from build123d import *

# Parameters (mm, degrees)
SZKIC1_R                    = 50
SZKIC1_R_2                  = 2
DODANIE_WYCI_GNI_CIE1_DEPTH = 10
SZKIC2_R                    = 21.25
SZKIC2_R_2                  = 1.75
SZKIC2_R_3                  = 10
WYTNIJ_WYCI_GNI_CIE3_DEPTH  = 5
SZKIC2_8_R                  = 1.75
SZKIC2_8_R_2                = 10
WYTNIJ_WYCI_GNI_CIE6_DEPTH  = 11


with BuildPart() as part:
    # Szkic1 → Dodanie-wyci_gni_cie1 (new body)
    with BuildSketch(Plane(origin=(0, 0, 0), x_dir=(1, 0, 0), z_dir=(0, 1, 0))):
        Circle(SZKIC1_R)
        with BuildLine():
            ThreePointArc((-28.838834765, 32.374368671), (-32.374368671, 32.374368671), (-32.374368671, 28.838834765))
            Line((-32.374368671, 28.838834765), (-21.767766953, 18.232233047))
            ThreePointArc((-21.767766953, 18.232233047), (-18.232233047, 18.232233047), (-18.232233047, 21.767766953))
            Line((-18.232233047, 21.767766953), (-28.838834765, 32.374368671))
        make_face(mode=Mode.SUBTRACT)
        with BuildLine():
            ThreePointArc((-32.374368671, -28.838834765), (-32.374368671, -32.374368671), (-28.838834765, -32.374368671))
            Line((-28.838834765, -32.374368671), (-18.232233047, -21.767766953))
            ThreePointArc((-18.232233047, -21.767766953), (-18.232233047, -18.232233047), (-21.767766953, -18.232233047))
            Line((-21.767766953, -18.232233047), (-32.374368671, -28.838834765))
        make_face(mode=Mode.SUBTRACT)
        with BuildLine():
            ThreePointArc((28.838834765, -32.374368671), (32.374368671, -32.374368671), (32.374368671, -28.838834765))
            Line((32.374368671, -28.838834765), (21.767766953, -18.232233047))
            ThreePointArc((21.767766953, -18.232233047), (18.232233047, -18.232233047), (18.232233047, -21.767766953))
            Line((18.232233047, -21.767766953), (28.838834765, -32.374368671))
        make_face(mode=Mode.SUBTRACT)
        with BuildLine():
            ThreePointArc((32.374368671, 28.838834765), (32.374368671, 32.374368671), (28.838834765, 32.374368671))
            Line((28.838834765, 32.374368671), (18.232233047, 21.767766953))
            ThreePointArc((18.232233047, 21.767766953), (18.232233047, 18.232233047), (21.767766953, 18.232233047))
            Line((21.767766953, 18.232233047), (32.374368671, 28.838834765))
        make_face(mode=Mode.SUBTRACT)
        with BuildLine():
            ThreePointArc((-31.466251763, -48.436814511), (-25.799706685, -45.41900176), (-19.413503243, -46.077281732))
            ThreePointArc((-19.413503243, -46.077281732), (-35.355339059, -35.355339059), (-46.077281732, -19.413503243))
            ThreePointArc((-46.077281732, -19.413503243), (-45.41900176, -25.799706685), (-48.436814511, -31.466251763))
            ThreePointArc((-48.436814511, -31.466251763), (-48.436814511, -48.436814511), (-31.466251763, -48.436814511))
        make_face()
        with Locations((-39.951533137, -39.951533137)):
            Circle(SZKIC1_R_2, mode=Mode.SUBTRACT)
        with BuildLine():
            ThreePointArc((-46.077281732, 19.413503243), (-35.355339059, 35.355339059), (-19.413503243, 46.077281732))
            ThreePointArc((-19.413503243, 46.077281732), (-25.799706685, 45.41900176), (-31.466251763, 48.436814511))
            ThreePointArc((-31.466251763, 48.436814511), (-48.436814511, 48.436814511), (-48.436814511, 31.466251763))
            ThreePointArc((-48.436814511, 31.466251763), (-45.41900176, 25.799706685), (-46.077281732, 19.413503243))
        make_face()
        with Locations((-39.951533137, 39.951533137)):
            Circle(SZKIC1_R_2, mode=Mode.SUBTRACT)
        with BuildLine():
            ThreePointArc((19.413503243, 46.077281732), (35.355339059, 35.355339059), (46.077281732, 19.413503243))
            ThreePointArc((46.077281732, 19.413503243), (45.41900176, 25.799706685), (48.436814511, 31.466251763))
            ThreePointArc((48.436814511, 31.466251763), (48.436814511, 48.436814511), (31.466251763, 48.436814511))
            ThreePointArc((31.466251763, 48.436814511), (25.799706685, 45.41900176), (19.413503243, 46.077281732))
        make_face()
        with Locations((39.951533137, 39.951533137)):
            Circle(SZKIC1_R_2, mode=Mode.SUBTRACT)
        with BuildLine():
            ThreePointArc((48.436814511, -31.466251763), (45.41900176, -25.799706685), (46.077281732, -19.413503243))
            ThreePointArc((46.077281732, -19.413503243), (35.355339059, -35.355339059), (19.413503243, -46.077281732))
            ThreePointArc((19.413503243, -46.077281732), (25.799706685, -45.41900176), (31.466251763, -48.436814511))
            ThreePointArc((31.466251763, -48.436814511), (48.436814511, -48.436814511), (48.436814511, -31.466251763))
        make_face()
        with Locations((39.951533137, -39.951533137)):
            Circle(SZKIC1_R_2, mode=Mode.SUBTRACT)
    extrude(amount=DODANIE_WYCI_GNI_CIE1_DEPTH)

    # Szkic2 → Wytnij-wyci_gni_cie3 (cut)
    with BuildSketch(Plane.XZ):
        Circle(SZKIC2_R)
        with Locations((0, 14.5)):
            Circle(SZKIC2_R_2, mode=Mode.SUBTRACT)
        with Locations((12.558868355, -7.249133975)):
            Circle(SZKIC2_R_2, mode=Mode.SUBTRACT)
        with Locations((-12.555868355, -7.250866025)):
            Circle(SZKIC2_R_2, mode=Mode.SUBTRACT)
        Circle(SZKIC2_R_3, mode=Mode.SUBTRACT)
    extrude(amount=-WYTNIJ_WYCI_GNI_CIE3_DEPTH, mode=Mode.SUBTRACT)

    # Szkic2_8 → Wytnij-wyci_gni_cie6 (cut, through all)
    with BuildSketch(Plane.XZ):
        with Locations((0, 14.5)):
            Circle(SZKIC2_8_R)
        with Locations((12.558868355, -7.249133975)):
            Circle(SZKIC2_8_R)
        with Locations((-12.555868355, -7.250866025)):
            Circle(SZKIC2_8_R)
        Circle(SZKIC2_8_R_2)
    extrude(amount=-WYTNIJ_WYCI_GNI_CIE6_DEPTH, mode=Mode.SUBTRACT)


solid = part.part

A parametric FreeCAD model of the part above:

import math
import FreeCAD as App
import Part
import Sketcher
Q = App.Units.Quantity

doc = App.newDocument("Part")
params = doc.addObject("Spreadsheet::Sheet", "Params")
for row, (alias, value) in enumerate([
    ("sketch1_diameter", "4 mm"),
    ("sketch1_radius", "12 mm"),
    ("sketch1_radius2", "50 mm"),
    ("sketch1_radius3", "2.5 mm"),
    ("sketch1_length", "15 mm"),
    ("pad1_length", "10 mm"),
    ("sketch2_diameter", "20 mm"),
    ("sketch2_diameter2", "42.5 mm"),
    ("sketch2_diameter3", "3.5 mm"),
    ("pocket1_length", "5 mm"),
    ("sketch3_diameter", "20 mm"),
    ("sketch3_diameter2", "3.5 mm"),
], start=1):
    params.set(f"A{row}", alias)
    params.set(f"B{row}", "=" + value)
    params.setAlias(f"B{row}", alias)

body = doc.addObject("PartDesign::Body", "Body")

sketch1 = doc.addObject("Sketcher::SketchObject", "Sketch")
body.addObject(sketch1)
sketch1.AttachmentSupport = (doc.XZ_Plane, [""])
sketch1.MapMode = "FlatFace"
sketch1.addGeometry([
    Part.ArcOfCircle(Part.Circle(App.Vector(-56.2, 23.7, 0), App.Vector(0, 0, 1), 11), math.radians(-23), math.radians(45)),
    Part.ArcOfCircle(Part.Circle(App.Vector(-40, 40, 0), App.Vector(0, 0, 1), 12), math.radians(45), math.radians(225)),
    Part.ArcOfCircle(Part.Circle(App.Vector(-23.7, 56.2, 0), App.Vector(0, 0, 1), 11), math.radians(-135), math.radians(-67)),
    Part.ArcOfCircle(Part.Circle(App.Vector(0, 0, 0), App.Vector(0, 0, 1), 50), math.radians(67), math.radians(113)),
    Part.ArcOfCircle(Part.Circle(App.Vector(23.7, 56.2, 0), App.Vector(0, 0, 1), 11), math.radians(-113), math.radians(-45)),
    Part.ArcOfCircle(Part.Circle(App.Vector(40, 40, 0), App.Vector(0, 0, 1), 12), math.radians(-45), math.radians(135)),
    Part.ArcOfCircle(Part.Circle(App.Vector(56.2, 23.7, 0), App.Vector(0, 0, 1), 11), math.radians(135), math.radians(203)),
    Part.ArcOfCircle(Part.Circle(App.Vector(0, 0, 0), App.Vector(0, 0, 1), 50), math.radians(-23), math.radians(23)),
    Part.ArcOfCircle(Part.Circle(App.Vector(56.2, -23.7, 0), App.Vector(0, 0, 1), 11), math.radians(157), math.radians(225)),
    Part.ArcOfCircle(Part.Circle(App.Vector(40, -40, 0), App.Vector(0, 0, 1), 12), math.radians(-135), math.radians(45)),
    Part.ArcOfCircle(Part.Circle(App.Vector(23.7, -56.2, 0), App.Vector(0, 0, 1), 11), math.radians(45), math.radians(113)),
    Part.ArcOfCircle(Part.Circle(App.Vector(0, 0, 0), App.Vector(0, 0, 1), 50), math.radians(-113), math.radians(-67)),
    Part.ArcOfCircle(Part.Circle(App.Vector(-23.7, -56.2, 0), App.Vector(0, 0, 1), 11), math.radians(67), math.radians(135)),
    Part.ArcOfCircle(Part.Circle(App.Vector(-40, -40, 0), App.Vector(0, 0, 1), 12), math.radians(135), math.radians(315)),
    Part.ArcOfCircle(Part.Circle(App.Vector(-56.2, -23.7, 0), App.Vector(0, 0, 1), 11), math.radians(-45), math.radians(23)),
    Part.ArcOfCircle(Part.Circle(App.Vector(0, 0, 0), App.Vector(0, 0, 1), 50), math.radians(157), math.radians(203)),
    Part.Circle(App.Vector(-40, 40, 0), App.Vector(0, 0, 1), 2),
    Part.ArcOfCircle(Part.Circle(App.Vector(-30.6, 30.6, 0), App.Vector(0, 0, 1), 2.5), math.radians(45), math.radians(225)),
    Part.LineSegment(App.Vector(-32.4, 28.8, 0), App.Vector(-21.8, 18.2, 0)),
    Part.ArcOfCircle(Part.Circle(App.Vector(-20, 20, 0), App.Vector(0, 0, 1), 2.5), math.radians(-135), math.radians(45)),
    Part.LineSegment(App.Vector(-18.2, 21.8, 0), App.Vector(-28.8, 32.4, 0)),
    Part.Circle(App.Vector(40, 40, 0), App.Vector(0, 0, 1), 2),
    Part.ArcOfCircle(Part.Circle(App.Vector(30.6, 30.6, 0), App.Vector(0, 0, 1), 2.5), math.radians(-45), math.radians(135)),
    Part.LineSegment(App.Vector(28.8, 32.4, 0), App.Vector(18.2, 21.8, 0)),
    Part.ArcOfCircle(Part.Circle(App.Vector(20, 20, 0), App.Vector(0, 0, 1), 2.5), math.radians(135), math.radians(315)),
    Part.LineSegment(App.Vector(21.8, 18.2, 0), App.Vector(32.4, 28.8, 0)),
    Part.ArcOfCircle(Part.Circle(App.Vector(-30.6, -30.6, 0), App.Vector(0, 0, 1), 2.5), math.radians(135), math.radians(315)),
    Part.LineSegment(App.Vector(-28.8, -32.4, 0), App.Vector(-18.2, -21.8, 0)),
    Part.ArcOfCircle(Part.Circle(App.Vector(-20, -20, 0), App.Vector(0, 0, 1), 2.5), math.radians(-45), math.radians(135)),
    Part.LineSegment(App.Vector(-21.8, -18.2, 0), App.Vector(-32.4, -28.8, 0)),
    Part.Circle(App.Vector(-40, -40, 0), App.Vector(0, 0, 1), 2),
    Part.ArcOfCircle(Part.Circle(App.Vector(30.6, -30.6, 0), App.Vector(0, 0, 1), 2.5), math.radians(-135), math.radians(45)),
    Part.LineSegment(App.Vector(32.4, -28.8, 0), App.Vector(21.8, -18.2, 0)),
    Part.ArcOfCircle(Part.Circle(App.Vector(20, -20, 0), App.Vector(0, 0, 1), 2.5), math.radians(45), math.radians(225)),
    Part.LineSegment(App.Vector(18.2, -21.8, 0), App.Vector(28.8, -32.4, 0)),
    Part.Circle(App.Vector(40, -40, 0), App.Vector(0, 0, 1), 2),
], False)
sketch1.addConstraint([
    Sketcher.Constraint("Tangent", 0, 2, 1, 2),
    Sketcher.Constraint("Tangent", 1, 1, 2, 1),
    Sketcher.Constraint("Tangent", 2, 2, 3, 2),
    Sketcher.Constraint("Tangent", 3, 1, 4, 1),
    Sketcher.Constraint("Tangent", 4, 2, 5, 2),
    Sketcher.Constraint("Tangent", 5, 1, 6, 1),
    Sketcher.Constraint("Tangent", 6, 2, 7, 2),
    Sketcher.Constraint("Tangent", 7, 1, 8, 1),
    Sketcher.Constraint("Tangent", 8, 2, 9, 2),
    Sketcher.Constraint("Tangent", 9, 1, 10, 1),
    Sketcher.Constraint("Tangent", 10, 2, 11, 2),
    Sketcher.Constraint("Tangent", 11, 1, 12, 1),
    Sketcher.Constraint("Tangent", 12, 2, 13, 2),
    Sketcher.Constraint("Tangent", 13, 1, 14, 1),
    Sketcher.Constraint("Tangent", 14, 2, 15, 2),
    Sketcher.Constraint("Tangent", 15, 1, 0, 1),
    Sketcher.Constraint("Tangent", 17, 2, 18, 1),
    Sketcher.Constraint("Tangent", 18, 2, 19, 1),
    Sketcher.Constraint("Tangent", 19, 2, 20, 1),
    Sketcher.Constraint("Tangent", 20, 2, 17, 1),
    Sketcher.Constraint("Tangent", 22, 2, 23, 1),
    Sketcher.Constraint("Tangent", 23, 2, 24, 1),
    Sketcher.Constraint("Tangent", 24, 2, 25, 1),
    Sketcher.Constraint("Tangent", 25, 2, 22, 1),
    Sketcher.Constraint("Tangent", 26, 2, 27, 1),
    Sketcher.Constraint("Tangent", 27, 2, 28, 1),
    Sketcher.Constraint("Tangent", 28, 2, 29, 1),
    Sketcher.Constraint("Tangent", 29, 2, 26, 1),
    Sketcher.Constraint("Tangent", 31, 2, 32, 1),
    Sketcher.Constraint("Tangent", 32, 2, 33, 1),
    Sketcher.Constraint("Tangent", 33, 2, 34, 1),
    Sketcher.Constraint("Tangent", 34, 2, 31, 1),
    Sketcher.Constraint("Coincident", 3, 3, -1, 1),
    Sketcher.Constraint("Coincident", 7, 3, -1, 1),
    Sketcher.Constraint("Coincident", 11, 3, -1, 1),
    Sketcher.Constraint("Coincident", 15, 3, -1, 1),
    Sketcher.Constraint("Coincident", 16, 3, 1, 3),
    Sketcher.Constraint("Coincident", 21, 3, 5, 3),
    Sketcher.Constraint("Coincident", 30, 3, 13, 3),
    Sketcher.Constraint("Coincident", 35, 3, 9, 3),
    Sketcher.Constraint("Equal", 0, 2),
    Sketcher.Constraint("Equal", 2, 4),
    Sketcher.Constraint("Equal", 1, 5),
    Sketcher.Constraint("Equal", 4, 6),
    Sketcher.Constraint("Equal", 3, 7),
    Sketcher.Constraint("Equal", 6, 8),
    Sketcher.Constraint("Equal", 5, 9),
    Sketcher.Constraint("Equal", 8, 10),
    Sketcher.Constraint("Equal", 7, 11),
    Sketcher.Constraint("Equal", 10, 12),
    Sketcher.Constraint("Equal", 9, 13),
    Sketcher.Constraint("Equal", 12, 14),
    Sketcher.Constraint("Equal", 11, 15),
    Sketcher.Constraint("Equal", 17, 19),
    Sketcher.Constraint("Equal", 16, 21),
    Sketcher.Constraint("Equal", 19, 22),
    Sketcher.Constraint("Equal", 22, 24),
    Sketcher.Constraint("Equal", 24, 26),
    Sketcher.Constraint("Equal", 26, 28),
    Sketcher.Constraint("Equal", 21, 30),
    Sketcher.Constraint("Equal", 28, 31),
    Sketcher.Constraint("Equal", 31, 33),
    Sketcher.Constraint("Equal", 30, 35),
    Sketcher.Constraint("Symmetric", 1, 3, 9, 3, -1, 1),
    Sketcher.Constraint("Symmetric", 5, 3, 13, 3, -1, 1),
    Sketcher.Constraint("Symmetric", 22, 3, 26, 3, -1, 1),
    Sketcher.Constraint("Symmetric", 24, 3, 28, 3, -1, 1),
    Sketcher.Constraint("Symmetric", 17, 3, 31, 3, -1, 1),
    Sketcher.Constraint("Symmetric", 19, 3, 33, 3, -1, 1),
    Sketcher.Constraint("Symmetric", 1, 3, 5, 3, -2),
    Sketcher.Constraint("Symmetric", 17, 3, 22, 3, -2),
    Sketcher.Constraint("Symmetric", 19, 3, 24, 3, -2),
    Sketcher.Constraint("Perpendicular", 20, 23),
    Sketcher.Constraint("Diameter", 16, Q("4 mm")),
    Sketcher.Constraint("Radius", 1, Q("12 mm")),
    Sketcher.Constraint("Radius", 3, Q("50 mm")),
    Sketcher.Constraint("Radius", 17, Q("2.5 mm")),
    Sketcher.Constraint("Distance", 18, Q("15 mm")),
    Sketcher.Constraint("DistanceX", 19, 3, -1, 1, Q("20 mm")),
    Sketcher.Constraint("DistanceY", -1, 1, 19, 3, Q("20 mm")),
    Sketcher.Constraint("Radius", 0, Q("11.003289 mm")),
    Sketcher.Constraint("DistanceX", 0, 3, 0, 2, Q("7.780501 mm")),
    Sketcher.Constraint("DistanceX", 1, 1, 2, 3, Q("7.780501 mm")),
])
sketch1.setExpression("Constraints[73]", "Params.sketch1_diameter")
sketch1.setExpression("Constraints[74]", "Params.sketch1_radius")
sketch1.setExpression("Constraints[75]", "Params.sketch1_radius2")
sketch1.setExpression("Constraints[76]", "Params.sketch1_radius3")
sketch1.setExpression("Constraints[77]", "Params.sketch1_length")
pad1 = doc.addObject("PartDesign::Pad", "Pad")
body.addObject(pad1)
pad1.Profile = sketch1
pad1.setExpression("Length", "Params.pad1_length")
pad1.Reversed = True

sketch2 = doc.addObject("Sketcher::SketchObject", "Sketch001")
body.addObject(sketch2)
sketch2.AttachmentSupport = (doc.XZ_Plane, [""])
sketch2.MapMode = "FlatFace"
sketch2.addGeometry([
    Part.Circle(App.Vector(0, 0, 0), App.Vector(0, 0, 1), 21.2),
    Part.Circle(App.Vector(-12.6, -7.3, 0), App.Vector(0, 0, 1), 1.8),
    Part.Circle(App.Vector(0, 0, 0), App.Vector(0, 0, 1), 10),
    Part.Circle(App.Vector(12.6, -7.2, 0), App.Vector(0, 0, 1), 1.8),
    Part.Circle(App.Vector(0, 14.5, 0), App.Vector(0, 0, 1), 1.8),
], False)
sketch2.addConstraint([
    Sketcher.Constraint("Coincident", 0, 3, -1, 1),
    Sketcher.Constraint("Coincident", 2, 3, -1, 1),
    Sketcher.Constraint("Equal", 1, 3),
    Sketcher.Constraint("Equal", 3, 4),
    Sketcher.Constraint("PointOnObject", 4, 3, -2),
    Sketcher.Constraint("Diameter", 2, Q("20 mm")),
    Sketcher.Constraint("Diameter", 0, Q("42.5 mm")),
    Sketcher.Constraint("Diameter", 1, Q("3.5 mm")),
    Sketcher.Constraint("DistanceY", -1, 1, 4, 3, Q("14.5 mm")),
    Sketcher.Constraint("DistanceX", 1, 3, -1, 1, Q("12.555868 mm")),
    Sketcher.Constraint("DistanceX", -1, 1, 3, 3, Q("12.558868 mm")),
    Sketcher.Constraint("DistanceY", 1, 3, -1, 1, Q("7.250866 mm")),
    Sketcher.Constraint("DistanceY", 3, 3, -1, 1, Q("7.249134 mm")),
])
sketch2.setExpression("Constraints[5]", "Params.sketch2_diameter")
sketch2.setExpression("Constraints[6]", "Params.sketch2_diameter2")
sketch2.setExpression("Constraints[7]", "Params.sketch2_diameter3")
pocket1 = doc.addObject("PartDesign::Pocket", "Pocket")
body.addObject(pocket1)
pocket1.Profile = sketch2
pocket1.setExpression("Length", "Params.pocket1_length")

sketch3 = doc.addObject("Sketcher::SketchObject", "Sketch002")
body.addObject(sketch3)
sketch3.AttachmentSupport = (doc.XZ_Plane, [""])
sketch3.MapMode = "FlatFace"
sketch3.addGeometry([
    Part.Circle(App.Vector(0, 14.5, 0), App.Vector(0, 0, 1), 1.8),
    Part.Circle(App.Vector(12.6, -7.2, 0), App.Vector(0, 0, 1), 1.8),
    Part.Circle(App.Vector(-12.6, -7.3, 0), App.Vector(0, 0, 1), 1.8),
    Part.Circle(App.Vector(0, 0, 0), App.Vector(0, 0, 1), 10),
], False)
sketch3.addConstraint([
    Sketcher.Constraint("Coincident", 3, 3, -1, 1),
    Sketcher.Constraint("Equal", 0, 1),
    Sketcher.Constraint("Equal", 1, 2),
    Sketcher.Constraint("PointOnObject", 0, 3, -2),
    Sketcher.Constraint("Diameter", 3, Q("20 mm")),
    Sketcher.Constraint("Diameter", 0, Q("3.5 mm")),
    Sketcher.Constraint("DistanceY", -1, 1, 0, 3, Q("14.5 mm")),
    Sketcher.Constraint("DistanceX", -1, 1, 1, 3, Q("12.558868 mm")),
    Sketcher.Constraint("DistanceX", 2, 3, -1, 1, Q("12.555868 mm")),
    Sketcher.Constraint("DistanceY", 1, 3, -1, 1, Q("7.249134 mm")),
    Sketcher.Constraint("DistanceY", 2, 3, -1, 1, Q("7.250866 mm")),
])
sketch3.setExpression("Constraints[4]", "Params.sketch3_diameter")
sketch3.setExpression("Constraints[5]", "Params.sketch3_diameter2")
pocket2 = doc.addObject("PartDesign::Pocket", "Pocket001")
body.addObject(pocket2)
pocket2.Profile = sketch3
pocket2.Type = "ThroughAll"

doc.recompute()
